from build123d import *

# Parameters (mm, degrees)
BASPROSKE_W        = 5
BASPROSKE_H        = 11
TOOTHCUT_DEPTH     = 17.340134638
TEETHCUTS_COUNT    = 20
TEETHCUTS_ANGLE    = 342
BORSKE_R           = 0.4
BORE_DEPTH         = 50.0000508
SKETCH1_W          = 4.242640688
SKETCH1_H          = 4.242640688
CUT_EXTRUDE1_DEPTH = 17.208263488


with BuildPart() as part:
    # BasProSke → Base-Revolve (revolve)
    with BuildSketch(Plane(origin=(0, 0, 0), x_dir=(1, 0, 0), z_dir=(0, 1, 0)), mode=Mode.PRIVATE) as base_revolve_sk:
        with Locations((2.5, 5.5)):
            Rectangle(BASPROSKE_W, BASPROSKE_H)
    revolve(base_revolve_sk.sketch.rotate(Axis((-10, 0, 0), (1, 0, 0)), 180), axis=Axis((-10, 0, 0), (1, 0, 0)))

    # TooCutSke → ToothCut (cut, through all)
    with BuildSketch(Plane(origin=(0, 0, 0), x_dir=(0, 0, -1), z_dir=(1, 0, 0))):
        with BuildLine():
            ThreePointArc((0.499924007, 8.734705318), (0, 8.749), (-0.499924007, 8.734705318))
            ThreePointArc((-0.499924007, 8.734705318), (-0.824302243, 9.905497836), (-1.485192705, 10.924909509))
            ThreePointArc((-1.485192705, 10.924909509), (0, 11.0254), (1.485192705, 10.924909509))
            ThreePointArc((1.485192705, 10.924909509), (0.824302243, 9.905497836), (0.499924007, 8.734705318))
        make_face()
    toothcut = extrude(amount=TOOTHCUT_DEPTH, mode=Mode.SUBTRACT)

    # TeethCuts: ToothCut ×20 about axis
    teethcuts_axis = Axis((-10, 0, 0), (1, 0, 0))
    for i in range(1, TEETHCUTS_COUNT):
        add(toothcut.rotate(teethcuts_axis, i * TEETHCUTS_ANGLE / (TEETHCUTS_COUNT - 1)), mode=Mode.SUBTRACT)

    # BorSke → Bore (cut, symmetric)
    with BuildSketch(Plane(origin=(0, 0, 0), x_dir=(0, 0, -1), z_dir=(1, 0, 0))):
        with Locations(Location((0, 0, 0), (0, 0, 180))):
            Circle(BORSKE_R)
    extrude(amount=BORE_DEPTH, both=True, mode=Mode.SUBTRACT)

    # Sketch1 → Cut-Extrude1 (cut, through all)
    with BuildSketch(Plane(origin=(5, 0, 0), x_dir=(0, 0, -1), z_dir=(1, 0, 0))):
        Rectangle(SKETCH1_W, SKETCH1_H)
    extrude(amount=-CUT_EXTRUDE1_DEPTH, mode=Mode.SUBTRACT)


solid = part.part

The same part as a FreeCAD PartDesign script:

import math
import FreeCAD as App
import Part
import Sketcher
from FreeCAD import Vector


def add_polygon(sketch, points):
    """Adds a closed chain of lines whose ends are joined by coincident constraints."""
    first, n = sketch.GeometryCount, len(points)
    for a, b in zip(points, points[1:] + points[:1]):
        sketch.addGeometry(Part.LineSegment(App.Vector(*a, 0), App.Vector(*b, 0)), False)
    for i in range(n):
        sketch.addConstraint(Sketcher.Constraint("Coincident", first + i, 2, first + (i + 1) % n, 1))

doc = App.newDocument("Part")
params = doc.addObject("Spreadsheet::Sheet", "Params")
for row, (alias, value) in enumerate([
    ("sketch1_width", "5 mm"),
    ("sketch1_height", "11 mm"),
    ("revolution_angle", "360 deg"),
    ("sketch2_radius", "4 mm"),
    ("sketch3_diameter", "0.8 mm"),
    ("pocket2_length", "100.000102 mm"),
], start=1):
    params.set(f"A{row}", alias)
    params.set(f"B{row}", "=" + value)
    params.setAlias(f"B{row}", alias)

body = doc.addObject("PartDesign::Body", "Body")

sketch1 = doc.addObject("Sketcher::SketchObject", "Sketch")
body.addObject(sketch1)
sketch1.AttachmentSupport = (doc.XZ_Plane, [""])
sketch1.MapMode = "FlatFace"
add_polygon(sketch1, [(0, -11), (0, 0), (5, 0), (5, -11)])
sketch1.addConstraint(Sketcher.Constraint("Vertical", 0))
sketch1.addConstraint(Sketcher.Constraint("Horizontal", 1))
sketch1.addConstraint(Sketcher.Constraint("Vertical", 2))
sketch1.addConstraint(Sketcher.Constraint("Horizontal", 3))
sketch1.addConstraint(Sketcher.Constraint("Coincident", 0, 2, -1, 1))
sketch1.addConstraint(Sketcher.Constraint("DistanceX", 1, 1, 1, 2, 5.0))
sketch1.addConstraint(Sketcher.Constraint("DistanceY", 0, 1, 0, 2, 11.0))
sketch1.setExpression("Constraints[9]", "Params.sketch1_width")
sketch1.setExpression("Constraints[10]", "Params.sketch1_height")
revolution = doc.addObject("PartDesign::Revolution", "Revolution")
body.addObject(revolution)
revolution.Profile = sketch1
revolution.ReferenceAxis = (sketch1, ["H_Axis"])
revolution.setExpression("Angle", "Params.revolution_angle")

sketch2 = doc.addObject("Sketcher::SketchObject", "Sketch001")
body.addObject(sketch2)
sketch2.AttachmentSupport = (doc.YZ_Plane, [""])
sketch2.MapMode = "FlatFace"
sketch2.addGeometry(Part.ArcOfCircle(Part.Circle(Vector(0, 0, 0), Vector(0, 0, 1), 8.7), math.radians(-3.28), math.radians(3.28)), False)
sketch2.addGeometry(Part.ArcOfCircle(Part.Circle(Vector(8.3, -4.5, 0), Vector(0, 0, 1), 4), math.radians(48), math.radians(83)), False)
sketch2.addGeometry(Part.ArcOfCircle(Part.Circle(Vector(0, 0, 0), Vector(0, 0, 1), 11), math.radians(-7.74), math.radians(7.74)), False)
sketch2.addGeometry(Part.ArcOfCircle(Part.Circle(Vector(8.3, 4.5, 0), Vector(0, 0, 1), 4), math.radians(-83), math.radians(-48)), False)
sketch2.addConstraint(Sketcher.Constraint("Coincident", 0, 1, 1, 2))
sketch2.addConstraint(Sketcher.Constraint("Coincident", 1, 1, 2, 1))
sketch2.addConstraint(Sketcher.Constraint("Coincident", 2, 2, 3, 2))
sketch2.addConstraint(Sketcher.Constraint("Coincident", 3, 1, 0, 2))
sketch2.addConstraint(Sketcher.Constraint("Coincident", 0, 3, -1, 1))
sketch2.addConstraint(Sketcher.Constraint("Coincident", 2, 3, -1, 1))
sketch2.addConstraint(Sketcher.Constraint("Equal", 1, 3))
sketch2.addConstraint(Sketcher.Constraint("Symmetric", 1, 3, 3, 3, -1))
sketch2.addConstraint(Sketcher.Constraint("Radius", 1, 4.0))
sketch2.addConstraint(Sketcher.Constraint("Radius", 0, 8.749))
sketch2.addConstraint(Sketcher.Constraint("Radius", 2, 11.0254))
sketch2.addConstraint(Sketcher.Constraint("DistanceY", 1, 3, -1, 1, 4.47219))
sketch2.addConstraint(Sketcher.Constraint("DistanceX", -1, 1, 1, 1, 10.92491))
sketch2.setExpression("Constraints[8]", "Params.sketch2_radius")
pocket1 = doc.addObject("PartDesign::Pocket", "Pocket")
body.addObject(pocket1)
pocket1.Profile = sketch2
pocket1.Type = "ThroughAll"
pocket1.Reversed = True
doc.recompute()

polarpattern = doc.addObject("PartDesign::PolarPattern", "PolarPattern")
body.addObject(polarpattern)
polarpattern.Originals = [pocket1]
polarpattern.Axis = (doc.X_Axis, [""])
polarpattern.Angle = 360
polarpattern.Occurrences = 20
body.Tip = polarpattern

sketch3 = doc.addObject("Sketcher::SketchObject", "Sketch002")
body.addObject(sketch3)
sketch3.AttachmentSupport = (doc.YZ_Plane, [""])
sketch3.MapMode = "FlatFace"
sketch3.addGeometry(Part.Circle(Vector(0, 0, 0), Vector(0, 0, 1), 0.4), False)
sketch3.addConstraint(Sketcher.Constraint("Coincident", 0, 3, -1, 1))
sketch3.addConstraint(Sketcher.Constraint("Diameter", 0, 0.8))
sketch3.setExpression("Constraints[1]", "Params.sketch3_diameter")
pocket2 = doc.addObject("PartDesign::Pocket", "Pocket001")
body.addObject(pocket2)
pocket2.Profile = sketch3
pocket2.setExpression("Length", "Params.pocket2_length")
pocket2.Midplane = True

sketch4 = doc.addObject("Sketcher::SketchObject", "Sketch003")
body.addObject(sketch4)
sketch4.AttachmentSupport = (doc.YZ_Plane, [""])
sketch4.MapMode = "FlatFace"
sketch4.AttachmentOffset = App.Placement(Vector(0, 0, 5), App.Rotation())
add_polygon(sketch4, [(2.1, 2.1), (-2.1, 2.1), (-2.1, -2.1), (2.1, -2.1)])
sketch4.addConstraint(Sketcher.Constraint("Horizontal", 0))
sketch4.addConstraint(Sketcher.Constraint("Vertical", 1))
sketch4.addConstraint(Sketcher.Constraint("Horizontal", 2))
sketch4.addConstraint(Sketcher.Constraint("Vertical", 3))
sketch4.addConstraint(Sketcher.Constraint("Symmetric", 0, 2, 2, 2, -1, 1))
sketch4.addConstraint(Sketcher.Constraint("Equal", 2, 1))
sketch4.addConstraint(Sketcher.Constraint("DistanceX", 0, 2, 0, 1, 4.242641))
pocket3 = doc.addObject("PartDesign::Pocket", "Pocket002")
body.addObject(pocket3)
pocket3.Profile = sketch4
pocket3.Type = "ThroughAll"

doc.recompute()
